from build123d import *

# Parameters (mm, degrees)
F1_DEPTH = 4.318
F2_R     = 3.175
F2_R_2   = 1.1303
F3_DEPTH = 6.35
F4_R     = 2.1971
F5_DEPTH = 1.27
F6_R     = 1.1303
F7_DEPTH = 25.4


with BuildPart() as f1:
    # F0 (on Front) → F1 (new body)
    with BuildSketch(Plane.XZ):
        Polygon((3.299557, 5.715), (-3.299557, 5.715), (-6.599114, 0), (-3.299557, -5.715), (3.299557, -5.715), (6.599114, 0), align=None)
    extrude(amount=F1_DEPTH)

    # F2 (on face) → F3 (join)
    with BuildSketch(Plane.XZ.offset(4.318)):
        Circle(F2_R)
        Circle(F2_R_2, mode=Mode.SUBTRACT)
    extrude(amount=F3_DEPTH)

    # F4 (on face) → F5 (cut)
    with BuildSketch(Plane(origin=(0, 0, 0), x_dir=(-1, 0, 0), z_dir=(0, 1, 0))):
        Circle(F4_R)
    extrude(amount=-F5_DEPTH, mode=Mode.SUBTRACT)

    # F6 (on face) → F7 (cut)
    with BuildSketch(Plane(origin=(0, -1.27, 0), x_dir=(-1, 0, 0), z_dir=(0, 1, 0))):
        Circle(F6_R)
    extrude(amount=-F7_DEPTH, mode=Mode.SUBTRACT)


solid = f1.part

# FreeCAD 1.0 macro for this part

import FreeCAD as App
import Part
import Sketcher

V = App.Vector
Q = App.Units.Quantity


def add_polygon(sketch, points):
    """Adds a closed chain of lines whose ends are joined by coincident constraints."""
    first, n = sketch.GeometryCount, len(points)
    for a, b in zip(points, points[1:] + points[:1]):
        sketch.addGeometry(Part.LineSegment(App.Vector(*a, 0), App.Vector(*b, 0)), False)
    for i in range(n):
        sketch.addConstraint(Sketcher.Constraint("Coincident", first + i, 2, first + (i + 1) % n, 1))

doc = App.newDocument("Part")
params = doc.addObject("Spreadsheet::Sheet", "Params")
for row, (alias, value) in enumerate([
    ("pad1_length", "0.17 in"),
    ("sketch2_diameter", "0.25 in"),
    ("sketch2_diameter2", "0.089 in"),
    ("pad2_length", "0.25 in"),
    ("sketch3_diameter", "0.173 in"),
    ("pocket1_length", "0.05 in"),
    ("sketch4_diameter", "0.089 in"),
    ("pocket2_length", "1 in"),
], start=1):
    params.set(f"A{row}", alias)
    params.set(f"B{row}", "=" + value)
    params.setAlias(f"B{row}", alias)

body = doc.addObject("PartDesign::Body", "Body")

# Sketch on XZ plane
sketch1 = doc.addObject("Sketcher::SketchObject", "Sketch")
body.addObject(sketch1)
sketch1.AttachmentSupport = (doc.XZ_Plane, [""])
sketch1.MapMode = "FlatFace"
add_polygon(sketch1, [(3.299557, 5.715), (-3.299557, 5.715), (-6.599114, 0), (-3.299557, -5.715), (3.299557, -5.715), (6.599114, 0)])  # lines 0-5
sketch1.addConstraint([
    Sketcher.Constraint("Horizontal", 0),
    Sketcher.Constraint("Horizontal", 3),
    Sketcher.Constraint("Symmetric", 0, 2, 3, 2, -1, 1),
    Sketcher.Constraint("Symmetric", 1, 2, 4, 2, -1, 1),
    Sketcher.Constraint("PointOnObject", 1, 2, -1),
    Sketcher.Constraint("Parallel", 2, 5),
    Sketcher.Constraint("Vertical", 0, 2, 2, 2),
    Sketcher.Constraint("Angle", 1, Q("-120.000002 deg")),
    Sketcher.Constraint("DistanceY", 2, 2, 0, 2, Q("0.45 in")),
    Sketcher.Constraint("DistanceX", 0, 2, 0, 1, 6.599114),
])
pad1 = doc.addObject("PartDesign::Pad", "Pad")
body.addObject(pad1)
pad1.Profile = sketch1
pad1.setExpression("Length", "Params.pad1_length")

# Sketch on XZ plane
sketch2 = doc.addObject("Sketcher::SketchObject", "Sketch001")
body.addObject(sketch2)
sketch2.AttachmentSupport = (doc.XZ_Plane, [""])
sketch2.MapMode = "FlatFace"
sketch2.AttachmentOffset = App.Placement(V(0, 0, 0.17 * 25.4), App.Rotation())
sketch2.addGeometry([
    Part.Circle(V(0, 0, 0), V(0, 0, 1), 3.175),
    Part.Circle(V(0, 0, 0), V(0, 0, 1), 1.1303),
], False)
sketch2.addConstraint([
    Sketcher.Constraint("Coincident", 0, 3, -1, 1),
    Sketcher.Constraint("Coincident", 1, 3, -1, 1),
    Sketcher.Constraint("Diameter", 0, Q("0.25 in")),
    Sketcher.Constraint("Diameter", 1, Q("0.089 in")),
])
sketch2.setExpression("Constraints[2]", "Params.sketch2_diameter")
sketch2.setExpression("Constraints[3]", "Params.sketch2_diameter2")
pad2 = doc.addObject("PartDesign::Pad", "Pad001")
body.addObject(pad2)
pad2.Profile = sketch2
pad2.setExpression("Length", "Params.pad2_length")

# Sketch on XZ plane
sketch3 = doc.addObject("Sketcher::SketchObject", "Sketch002")
body.addObject(sketch3)
sketch3.AttachmentSupport = (doc.XZ_Plane, [""])
sketch3.MapMode = "FlatFace"
sketch3.addGeometry(Part.Circle(V(0, 0, 0), V(0, 0, 1), 2.1971), False)
sketch3.addConstraint([
    Sketcher.Constraint("Coincident", 0, 3, -1, 1),
    Sketcher.Constraint("Diameter", 0, Q("0.173 in")),
])
sketch3.setExpression("Constraints[1]", "Params.sketch3_diameter")
pocket1 = doc.addObject("PartDesign::Pocket", "Pocket")
body.addObject(pocket1)
pocket1.Profile = sketch3
pocket1.setExpression("Length", "Params.pocket1_length")
pocket1.Reversed = True

# Sketch on XZ plane
sketch4 = doc.addObject("Sketcher::SketchObject", "Sketch003")
body.addObject(sketch4)
sketch4.AttachmentSupport = (doc.XZ_Plane, [""])
sketch4.MapMode = "FlatFace"
sketch4.AttachmentOffset = App.Placement(V(0, 0, 0.05 * 25.4), App.Rotation())
sketch4.addGeometry(Part.Circle(V(0, 0, 0), V(0, 0, 1), 1.1303), False)
sketch4.addConstraint([
    Sketcher.Constraint("Coincident", 0, 3, -1, 1),
    Sketcher.Constraint("Diameter", 0, Q("0.089 in")),
])
sketch4.setExpression("Constraints[1]", "Params.sketch4_diameter")
pocket2 = doc.addObject("PartDesign::Pocket", "Pocket001")
body.addObject(pocket2)
pocket2.Profile = sketch4
pocket2.setExpression("Length", "Params.pocket2_length")
pocket2.Reversed = True

doc.recompute()
